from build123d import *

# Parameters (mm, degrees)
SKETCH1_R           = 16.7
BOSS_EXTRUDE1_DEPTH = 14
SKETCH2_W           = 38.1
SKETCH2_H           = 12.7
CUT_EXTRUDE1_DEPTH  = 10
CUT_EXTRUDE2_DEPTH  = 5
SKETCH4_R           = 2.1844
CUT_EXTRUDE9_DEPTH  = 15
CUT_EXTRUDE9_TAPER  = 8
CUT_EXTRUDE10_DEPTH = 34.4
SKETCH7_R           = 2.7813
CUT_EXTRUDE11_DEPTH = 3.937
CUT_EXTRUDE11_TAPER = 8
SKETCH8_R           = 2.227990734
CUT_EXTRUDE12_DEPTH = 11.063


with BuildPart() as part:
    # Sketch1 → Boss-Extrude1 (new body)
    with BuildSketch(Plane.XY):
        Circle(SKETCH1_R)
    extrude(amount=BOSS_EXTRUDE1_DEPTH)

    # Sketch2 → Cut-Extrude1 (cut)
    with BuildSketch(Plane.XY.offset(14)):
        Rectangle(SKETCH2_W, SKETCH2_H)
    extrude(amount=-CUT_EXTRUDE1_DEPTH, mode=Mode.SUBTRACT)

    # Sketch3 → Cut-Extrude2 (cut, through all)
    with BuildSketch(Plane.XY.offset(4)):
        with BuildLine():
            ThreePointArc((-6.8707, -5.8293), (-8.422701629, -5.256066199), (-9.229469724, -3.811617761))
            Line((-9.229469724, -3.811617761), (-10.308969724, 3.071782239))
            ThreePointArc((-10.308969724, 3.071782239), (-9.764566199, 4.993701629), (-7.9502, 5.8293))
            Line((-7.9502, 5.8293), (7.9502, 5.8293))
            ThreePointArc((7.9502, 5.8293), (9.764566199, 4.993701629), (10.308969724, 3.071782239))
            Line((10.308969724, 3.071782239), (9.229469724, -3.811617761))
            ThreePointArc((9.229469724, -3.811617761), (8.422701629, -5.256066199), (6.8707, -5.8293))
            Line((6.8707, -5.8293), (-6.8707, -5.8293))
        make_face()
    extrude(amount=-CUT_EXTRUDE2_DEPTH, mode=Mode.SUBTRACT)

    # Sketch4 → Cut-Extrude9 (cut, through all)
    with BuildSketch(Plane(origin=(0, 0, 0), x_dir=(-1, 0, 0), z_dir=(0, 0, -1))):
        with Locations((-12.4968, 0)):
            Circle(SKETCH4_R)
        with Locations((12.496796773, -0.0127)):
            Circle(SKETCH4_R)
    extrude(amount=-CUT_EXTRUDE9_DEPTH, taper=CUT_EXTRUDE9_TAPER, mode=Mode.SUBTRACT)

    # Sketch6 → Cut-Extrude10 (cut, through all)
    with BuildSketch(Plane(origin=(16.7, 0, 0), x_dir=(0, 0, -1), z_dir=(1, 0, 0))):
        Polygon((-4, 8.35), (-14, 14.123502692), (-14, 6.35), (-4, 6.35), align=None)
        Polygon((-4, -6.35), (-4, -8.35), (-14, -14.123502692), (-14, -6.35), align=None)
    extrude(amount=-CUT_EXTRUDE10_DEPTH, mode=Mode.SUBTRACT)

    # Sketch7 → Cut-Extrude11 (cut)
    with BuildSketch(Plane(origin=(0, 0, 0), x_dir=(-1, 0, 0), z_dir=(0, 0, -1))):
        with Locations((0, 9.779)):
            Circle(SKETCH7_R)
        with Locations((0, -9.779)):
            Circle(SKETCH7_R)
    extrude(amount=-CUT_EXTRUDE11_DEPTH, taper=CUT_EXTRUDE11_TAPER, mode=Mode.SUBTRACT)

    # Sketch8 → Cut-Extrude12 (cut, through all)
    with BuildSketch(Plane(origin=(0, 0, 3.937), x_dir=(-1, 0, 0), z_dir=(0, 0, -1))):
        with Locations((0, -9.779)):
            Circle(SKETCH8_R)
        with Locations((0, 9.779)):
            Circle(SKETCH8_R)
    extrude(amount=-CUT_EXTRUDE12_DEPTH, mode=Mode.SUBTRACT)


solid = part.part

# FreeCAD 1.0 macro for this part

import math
import FreeCAD as App
import Part
import Sketcher

V = App.Vector
Q = App.Units.Quantity


def add_polygon(sketch, points):
    """Adds a closed chain of lines whose ends are joined by coincident constraints."""
    first, n = sketch.GeometryCount, len(points)
    for a, b in zip(points, points[1:] + points[:1]):
        sketch.addGeometry(Part.LineSegment(App.Vector(*a, 0), App.Vector(*b, 0)), False)
    for i in range(n):
        sketch.addConstraint(Sketcher.Constraint("Coincident", first + i, 2, first + (i + 1) % n, 1))

doc = App.newDocument("Part")
body = doc.addObject("PartDesign::Body", "Body")

sketch1 = body.newObject("Sketcher::SketchObject", "Sketch")
sketch1.AttachmentSupport = (doc.getObject("XY_Plane"), [""])
sketch1.MapMode = "FlatFace"
sketch1.addGeometry(Part.Circle(V(0, 0, 0), V(0, 0, 1), 16.7), False)
sketch1.addConstraint(Sketcher.Constraint("Coincident", 0, 3, -1, 1))
sketch1.addConstraint(Sketcher.Constraint("Diameter", 0, 33.4))
pad1 = body.newObject("PartDesign::Pad", "Pad")
pad1.Profile = sketch1
pad1.Length = 14

sketch2 = body.newObject("Sketcher::SketchObject", "Sketch001")
sketch2.AttachmentSupport = (doc.getObject("XY_Plane"), [""])
sketch2.MapMode = "FlatFace"
sketch2.AttachmentOffset = App.Placement(V(0, 0, 14), App.Rotation())
add_polygon(sketch2, [(-19.05, 6.35), (-19.05, -6.35), (19.05, -6.35), (19.05, 6.35)])
sketch2.addConstraint(Sketcher.Constraint("Vertical", 0))
sketch2.addConstraint(Sketcher.Constraint("Horizontal", 1))
sketch2.addConstraint(Sketcher.Constraint("Vertical", 2))
sketch2.addConstraint(Sketcher.Constraint("Horizontal", 3))
sketch2.addConstraint(Sketcher.Constraint("Symmetric", 0, 2, 2, 2, -1, 1))
sketch2.addConstraint(Sketcher.Constraint("DistanceX", 1, 1, 1, 2, Q("1.5 in")))
sketch2.addConstraint(Sketcher.Constraint("DistanceY", 0, 2, 0, 1, Q("0.5 in")))
pocket1 = body.newObject("PartDesign::Pocket", "Pocket")
pocket1.Profile = sketch2
pocket1.Length = 10

sketch3 = body.newObject("Sketcher::SketchObject", "Sketch002")
sketch3.AttachmentSupport = (doc.getObject("XY_Plane"), [""])
sketch3.MapMode = "FlatFace"
sketch3.AttachmentOffset = App.Placement(V(0, 0, 4), App.Rotation())
sketch3.addGeometry(Part.ArcOfCircle(Part.Circle(V(-6.8707, -3.4417, 0), V(0, 0, 1), 2.3876), math.radians(-171.087096), math.radians(-90)), False)
sketch3.addGeometry(Part.LineSegment(V(-6.8707, -5.8293, 0), V(6.8707, -5.8293, 0)), False)
sketch3.addGeometry(Part.ArcOfCircle(Part.Circle(V(6.8707, -3.4417, 0), V(0, 0, 1), 2.3876), math.radians(-90), math.radians(-8.912904)), False)
sketch3.addGeometry(Part.LineSegment(V(9.22947, -3.811618, 0), V(10.30897, 3.071782, 0)), False)
sketch3.addGeometry(Part.ArcOfCircle(Part.Circle(V(7.9502, 3.4417, 0), V(0, 0, 1), 2.3876), math.radians(-8.912904), math.radians(90)), False)
sketch3.addGeometry(Part.LineSegment(V(7.9502, 5.8293, 0), V(-7.9502, 5.8293, 0)), False)
sketch3.addGeometry(Part.ArcOfCircle(Part.Circle(V(-7.9502, 3.4417, 0), V(0, 0, 1), 2.3876), math.radians(90), math.radians(188.912904)), False)
sketch3.addGeometry(Part.LineSegment(V(-10.30897, 3.071782, 0), V(-9.22947, -3.811618, 0)), False)
sketch3.addConstraint(Sketcher.Constraint("Tangent", 0, 2, 1, 1))
sketch3.addConstraint(Sketcher.Constraint("Tangent", 1, 2, 2, 1))
sketch3.addConstraint(Sketcher.Constraint("Tangent", 2, 2, 3, 1))
sketch3.addConstraint(Sketcher.Constraint("Tangent", 3, 2, 4, 1))
sketch3.addConstraint(Sketcher.Constraint("Tangent", 4, 2, 5, 1))
sketch3.addConstraint(Sketcher.Constraint("Tangent", 5, 2, 6, 1))
sketch3.addConstraint(Sketcher.Constraint("Tangent", 6, 2, 7, 1))
sketch3.addConstraint(Sketcher.Constraint("Tangent", 7, 2, 0, 1))
sketch3.addConstraint(Sketcher.Constraint("Horizontal", 1))
sketch3.addConstraint(Sketcher.Constraint("Horizontal", 5))
sketch3.addConstraint(Sketcher.Constraint("Equal", 0, 2))
sketch3.addConstraint(Sketcher.Constraint("Equal", 2, 4))
sketch3.addConstraint(Sketcher.Constraint("Equal", 4, 6))
sketch3.addConstraint(Sketcher.Constraint("Symmetric", 3, 2, 6, 2, -2))
sketch3.addConstraint(Sketcher.Constraint("Radius", 0, Q("0.094 in")))
sketch3.addConstraint(Sketcher.Constraint("DistanceX", 1, 1, 1, 2, Q("0.541 in")))
sketch3.addConstraint(Sketcher.Constraint("DistanceX", 5, 2, 5, 1, Q("0.626 in")))
sketch3.addConstraint(Sketcher.Constraint("DistanceY", 2, 3, 4, 3, Q("0.271 in")))
sketch3.addConstraint(Sketcher.Constraint("DistanceY", 0, 3, -1, 1, Q("0.1355 in")))
pocket2 = body.newObject("PartDesign::Pocket", "Pocket001")
pocket2.Profile = sketch3
pocket2.Type = "ThroughAll"

sketch4 = body.newObject("Sketcher::SketchObject", "Sketch003")
sketch4.AttachmentSupport = (doc.getObject("XY_Plane"), [""])
sketch4.MapMode = "FlatFace"
sketch4.addGeometry(Part.Circle(V(12.4968, 0, 0), V(0, 0, 1), 2.1844), False)
sketch4.addGeometry(Part.Circle(V(-12.496797, -0.0127, 0), V(0, 0, 1), 2.1844), False)
sketch4.addConstraint(Sketcher.Constraint("Equal", 0, 1))
sketch4.addConstraint(Sketcher.Constraint("PointOnObject", 0, 3, -1))
sketch4.addConstraint(Sketcher.Constraint("Diameter", 0, Q("0.172 in")))
sketch4.addConstraint(Sketcher.Constraint("DistanceX", -1, 1, 0, 3, Q("0.492 in")))
sketch4.addConstraint(Sketcher.Constraint("DistanceX", 1, 3, -1, 1, Q("0.4919999 in")))
sketch4.addConstraint(Sketcher.Constraint("DistanceY", 1, 3, -1, 1, Q("0.0005 in")))
pocket3 = body.newObject("PartDesign::Pocket", "Pocket002")
pocket3.Profile = sketch4
pocket3.Type = "ThroughAll"
pocket3.Reversed = True
pocket3.TaperAngle = -8

sketch5 = body.newObject("Sketcher::SketchObject", "Sketch004")
sketch5.AttachmentSupport = (doc.getObject("YZ_Plane"), [""])
sketch5.MapMode = "FlatFace"
sketch5.AttachmentOffset = App.Placement(V(0, 0, 16.7), App.Rotation())
add_polygon(sketch5, [(8.35, 4), (14.123503, 14), (6.35, 14), (6.35, 4)])
add_polygon(sketch5, [(-8.35, 4), (-6.35, 4), (-6.35, 14), (-14.123503, 14)])
sketch5.addConstraint(Sketcher.Constraint("Horizontal", 1))
sketch5.addConstraint(Sketcher.Constraint("Vertical", 2))
sketch5.addConstraint(Sketcher.Constraint("Horizontal", 3))
sketch5.addConstraint(Sketcher.Constraint("Horizontal", 4))
sketch5.addConstraint(Sketcher.Constraint("Vertical", 5))
sketch5.addConstraint(Sketcher.Constraint("Horizontal", 6))
sketch5.addConstraint(Sketcher.Constraint("Symmetric", 2, 2, 4, 2, -2))
sketch5.addConstraint(Sketcher.Constraint("Symmetric", 0, 2, 6, 2, -2))
sketch5.addConstraint(Sketcher.Constraint("Equal", 3, 4))
sketch5.addConstraint(Sketcher.Constraint("Angle", 0, Q("60 deg")))
sketch5.addConstraint(Sketcher.Constraint("DistanceX", 4, 2, 2, 2, Q("0.5 in")))
sketch5.addConstraint(Sketcher.Constraint("DistanceX", 3, 1, 3, 2, 2.0))
sketch5.addConstraint(Sketcher.Constraint("DistanceY", 2, 2, 2, 1, 10.0))
sketch5.addConstraint(Sketcher.Constraint("DistanceY", -1, 1, 0, 2, 14.0))
pocket4 = body.newObject("PartDesign::Pocket", "Pocket003")
pocket4.Profile = sketch5
pocket4.Type = "ThroughAll"

sketch6 = body.newObject("Sketcher::SketchObject", "Sketch005")
sketch6.AttachmentSupport = (doc.getObject("XY_Plane"), [""])
sketch6.MapMode = "FlatFace"
sketch6.addGeometry(Part.Circle(V(0, 9.779, 0), V(0, 0, 1), 2.7813), False)
sketch6.addGeometry(Part.Circle(V(0, -9.779, 0), V(0, 0, 1), 2.7813), False)
sketch6.addConstraint(Sketcher.Constraint("Equal", 0, 1))
sketch6.addConstraint(Sketcher.Constraint("Symmetric", 0, 3, 1, 3, -1, 1))
sketch6.addConstraint(Sketcher.Constraint("PointOnObject", 0, 3, -2))
sketch6.addConstraint(Sketcher.Constraint("Diameter", 0, Q("0.219 in")))
sketch6.addConstraint(Sketcher.Constraint("DistanceY", 1, 3, 0, 3, Q("0.77 in")))
pocket5 = body.newObject("PartDesign::Pocket", "Pocket004")
pocket5.Profile = sketch6
pocket5.Length = Q("0.155 in")
pocket5.Reversed = True
pocket5.TaperAngle = -8

sketch7 = body.newObject("Sketcher::SketchObject", "Sketch006")
sketch7.AttachmentSupport = (doc.getObject("XY_Plane"), [""])
sketch7.MapMode = "FlatFace"
sketch7.AttachmentOffset = App.Placement(V(0, 0, 0.155 * 25.4), App.Rotation())
sketch7.addGeometry(Part.Circle(V(0, -9.779, 0), V(0, 0, 1), 2.227991), False)
sketch7.addGeometry(Part.Circle(V(0, 9.779, 0), V(0, 0, 1), 2.227991), False)
sketch7.addConstraint(Sketcher.Constraint("Equal", 0, 1))
sketch7.addConstraint(Sketcher.Constraint("Symmetric", 0, 3, 1, 3, -1, 1))
sketch7.addConstraint(Sketcher.Constraint("PointOnObject", 0, 3, -2))
sketch7.addConstraint(Sketcher.Constraint("DistanceY", 0, 3, 1, 3, Q("0.77 in")))
sketch7.addConstraint(Sketcher.Constraint("Diameter", 0, 4.455981))
pocket6 = body.newObject("PartDesign::Pocket", "Pocket005")
pocket6.Profile = sketch7
pocket6.Type = "ThroughAll"
pocket6.Reversed = True

doc.recompute()
